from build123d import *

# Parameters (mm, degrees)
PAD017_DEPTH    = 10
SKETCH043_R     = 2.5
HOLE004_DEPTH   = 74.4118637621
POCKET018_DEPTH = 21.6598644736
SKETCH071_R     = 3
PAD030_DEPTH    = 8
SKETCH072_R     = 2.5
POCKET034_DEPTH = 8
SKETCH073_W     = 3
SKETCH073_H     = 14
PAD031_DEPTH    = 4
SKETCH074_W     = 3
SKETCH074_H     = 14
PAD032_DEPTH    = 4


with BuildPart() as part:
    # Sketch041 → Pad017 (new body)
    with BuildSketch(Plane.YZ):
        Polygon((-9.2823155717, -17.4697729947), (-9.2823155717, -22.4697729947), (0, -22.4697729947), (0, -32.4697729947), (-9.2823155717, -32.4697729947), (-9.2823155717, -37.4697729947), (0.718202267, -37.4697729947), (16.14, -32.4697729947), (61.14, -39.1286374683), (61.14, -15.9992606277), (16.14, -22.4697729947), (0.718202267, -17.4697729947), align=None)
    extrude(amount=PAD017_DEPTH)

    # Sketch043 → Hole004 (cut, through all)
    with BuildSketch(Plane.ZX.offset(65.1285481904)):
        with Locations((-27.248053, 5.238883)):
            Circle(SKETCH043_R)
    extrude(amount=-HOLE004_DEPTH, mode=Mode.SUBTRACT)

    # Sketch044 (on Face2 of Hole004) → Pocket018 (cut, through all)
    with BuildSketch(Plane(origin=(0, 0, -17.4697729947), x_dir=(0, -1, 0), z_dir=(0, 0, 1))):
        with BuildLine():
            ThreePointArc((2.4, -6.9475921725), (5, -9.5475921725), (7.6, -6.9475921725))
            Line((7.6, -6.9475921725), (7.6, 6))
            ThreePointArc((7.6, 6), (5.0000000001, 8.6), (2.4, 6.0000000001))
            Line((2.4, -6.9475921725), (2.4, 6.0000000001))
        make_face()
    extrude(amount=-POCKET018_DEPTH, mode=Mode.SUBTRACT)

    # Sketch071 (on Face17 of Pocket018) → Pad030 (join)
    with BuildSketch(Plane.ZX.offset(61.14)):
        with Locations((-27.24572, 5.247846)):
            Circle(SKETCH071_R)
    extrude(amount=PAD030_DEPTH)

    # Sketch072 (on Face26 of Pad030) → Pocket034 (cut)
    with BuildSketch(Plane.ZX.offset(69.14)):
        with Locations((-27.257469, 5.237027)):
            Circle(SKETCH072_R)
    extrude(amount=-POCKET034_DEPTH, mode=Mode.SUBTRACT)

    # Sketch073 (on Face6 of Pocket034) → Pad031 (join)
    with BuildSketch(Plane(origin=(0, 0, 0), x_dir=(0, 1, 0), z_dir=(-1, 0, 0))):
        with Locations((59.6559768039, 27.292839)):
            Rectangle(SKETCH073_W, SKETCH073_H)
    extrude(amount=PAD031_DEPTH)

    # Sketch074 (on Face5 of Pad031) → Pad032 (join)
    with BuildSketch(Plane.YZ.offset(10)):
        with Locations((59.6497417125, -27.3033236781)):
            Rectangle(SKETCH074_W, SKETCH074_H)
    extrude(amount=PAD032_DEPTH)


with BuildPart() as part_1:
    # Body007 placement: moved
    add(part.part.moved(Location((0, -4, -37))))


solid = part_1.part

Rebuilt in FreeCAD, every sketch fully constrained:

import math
import FreeCAD as App
import Part
import Sketcher

V = App.Vector
Q = App.Units.Quantity

doc = App.newDocument("Part")
body = doc.addObject("PartDesign::Body", "Body")

sketch1 = body.newObject("Sketcher::SketchObject", "Sketch")
sketch1.AttachmentSupport = (doc.getObject("YZ_Plane"), [""])
sketch1.MapMode = "FlatFace"
sketch1.addGeometry(Part.LineSegment(V(-9, -17, 0), V(-9, -22, 0)), False)
sketch1.addGeometry(Part.LineSegment(V(-9, -22, 0), V(0, -22, 0)), False)
sketch1.addGeometry(Part.LineSegment(V(0, -22, 0), V(0, -32, 0)), False)
sketch1.addGeometry(Part.LineSegment(V(0, -32, 0), V(-9, -32, 0)), False)
sketch1.addGeometry(Part.LineSegment(V(-9, -32, 0), V(-9, -37, 0)), False)
sketch1.addGeometry(Part.LineSegment(V(-9, -37, 0), V(1, -37, 0)), False)
sketch1.addGeometry(Part.LineSegment(V(1, -37, 0), V(16, -32, 0)), False)
sketch1.addGeometry(Part.LineSegment(V(16, -32, 0), V(61, -39, 0)), False)
sketch1.addGeometry(Part.LineSegment(V(61, -39, 0), V(61, -16, 0)), False)
sketch1.addGeometry(Part.LineSegment(V(61, -16, 0), V(16, -22, 0)), False)
sketch1.addGeometry(Part.LineSegment(V(16, -22, 0), V(1, -17, 0)), False)
sketch1.addGeometry(Part.LineSegment(V(1, -17, 0), V(-9, -17, 0)), False)
sketch1.addConstraint(Sketcher.Constraint("Coincident", 0, 2, 1, 1))
sketch1.addConstraint(Sketcher.Constraint("Coincident", 1, 2, 2, 1))
sketch1.addConstraint(Sketcher.Constraint("Coincident", 2, 2, 3, 1))
sketch1.addConstraint(Sketcher.Constraint("Coincident", 3, 2, 4, 1))
sketch1.addConstraint(Sketcher.Constraint("Coincident", 4, 2, 5, 1))
sketch1.addConstraint(Sketcher.Constraint("Coincident", 5, 2, 6, 1))
sketch1.addConstraint(Sketcher.Constraint("Coincident", 6, 2, 7, 1))
sketch1.addConstraint(Sketcher.Constraint("Coincident", 7, 2, 8, 1))
sketch1.addConstraint(Sketcher.Constraint("Coincident", 8, 2, 9, 1))
sketch1.addConstraint(Sketcher.Constraint("Coincident", 9, 2, 10, 1))
sketch1.addConstraint(Sketcher.Constraint("Coincident", 10, 2, 11, 1))
sketch1.addConstraint(Sketcher.Constraint("Coincident", 11, 2, 0, 1))
sketch1.addConstraint(Sketcher.Constraint("Vertical", 0))
sketch1.addConstraint(Sketcher.Constraint("Horizontal", 1))
sketch1.addConstraint(Sketcher.Constraint("Vertical", 2))
sketch1.addConstraint(Sketcher.Constraint("Horizontal", 3))
sketch1.addConstraint(Sketcher.Constraint("Vertical", 4))
sketch1.addConstraint(Sketcher.Constraint("Horizontal", 5))
sketch1.addConstraint(Sketcher.Constraint("Vertical", 8))
sketch1.addConstraint(Sketcher.Constraint("Horizontal", 11))
sketch1.addConstraint(Sketcher.Constraint("PointOnObject", 1, 2, -2))
sketch1.addConstraint(Sketcher.Constraint("Horizontal", 3, 2, 6, 2))
sketch1.addConstraint(Sketcher.Constraint("Horizontal", 1, 2, 9, 2))
sketch1.addConstraint(Sketcher.Constraint("Vertical", 0, 2, 3, 2))
sketch1.addConstraint(Sketcher.Constraint("Vertical", 6, 2, 9, 2))
sketch1.addConstraint(Sketcher.Constraint("Vertical", 5, 2, 10, 2))
sketch1.addConstraint(Sketcher.Constraint("Equal", 0, 4))
sketch1.addConstraint(Sketcher.Constraint("DistanceY", 0, 2, 0, 1, Q("5 mm")))
sketch1.addConstraint(Sketcher.Constraint("DistanceY", 2, 2, 2, 1, Q("10 mm")))
sketch1.addConstraint(Sketcher.Constraint("DistanceX", 6, 2, 7, 2, Q("45 mm")))
sketch1.addConstraint(Sketcher.Constraint("DistanceX", -1, 1, 6, 2, Q("16.14 mm")))
sketch1.addConstraint(Sketcher.Constraint("Distance", 6, Q("16.212089 mm")))
sketch1.addConstraint(Sketcher.Constraint("DistanceX", 1, 1, 1, 2, Q("9.282316 mm")))
sketch1.addConstraint(Sketcher.Constraint("DistanceY", 8, 1, 8, 2, Q("23.129377 mm")))
sketch1.addConstraint(Sketcher.Constraint("DistanceY", 8, 2, -1, 1, Q("15.999261 mm")))
sketch1.addConstraint(Sketcher.Constraint("Distance", 7, Q("45.490004 mm")))
pad1 = body.newObject("PartDesign::Pad", "Pad")
pad1.Profile = sketch1
pad1.Length = 10

sketch2 = body.newObject("Sketcher::SketchObject", "Sketch001")
sketch2.AttachmentSupport = (doc.getObject("XZ_Plane"), [""])
sketch2.MapMode = "FlatFace"
sketch2.AttachmentOffset = App.Placement(V(0, 0, -65.128548), App.Rotation())
sketch2.addGeometry(Part.Circle(V(5.2, -27.2, 0), V(0, 0, 1), 2.5), False)
sketch2.addConstraint(Sketcher.Constraint("Diameter", 0, Q("5 mm")))
sketch2.addConstraint(Sketcher.Constraint("DistanceX", -1, 1, 0, 3, Q("5.238883 mm")))
sketch2.addConstraint(Sketcher.Constraint("DistanceY", 0, 3, -1, 1, Q("27.248053 mm")))
pocket1 = body.newObject("PartDesign::Pocket", "Pocket")
pocket1.Profile = sketch2
pocket1.Type = "ThroughAll"
pocket1.Reversed = True

sketch3 = body.newObject("Sketcher::SketchObject", "Sketch002")
sketch3.AttachmentSupport = (doc.getObject("XY_Plane"), [""])
sketch3.MapMode = "FlatFace"
sketch3.AttachmentOffset = App.Placement(V(0, 0, -17.469773), App.Rotation())
sketch3.addGeometry(Part.ArcOfCircle(Part.Circle(V(-6.9, -5, 0), V(0, 0, 1), 2.6), math.radians(90), math.radians(270)), False)
sketch3.addGeometry(Part.LineSegment(V(-6.9, -7.6, 0), V(6, -7.6, 0)), False)
sketch3.addGeometry(Part.ArcOfCircle(Part.Circle(V(6, -5, 0), V(0, 0, 1), 2.6), math.radians(-90), math.radians(90)), False)
sketch3.addGeometry(Part.LineSegment(V(6, -2.4, 0), V(-6.9, -2.4, 0)), False)
sketch3.addConstraint(Sketcher.Constraint("Tangent", 0, 2, 1, 1))
sketch3.addConstraint(Sketcher.Constraint("Tangent", 1, 2, 2, 1))
sketch3.addConstraint(Sketcher.Constraint("Tangent", 2, 2, 3, 1))
sketch3.addConstraint(Sketcher.Constraint("Tangent", 3, 2, 0, 1))
sketch3.addConstraint(Sketcher.Constraint("Horizontal", 1))
sketch3.addConstraint(Sketcher.Constraint("Horizontal", 3))
sketch3.addConstraint(Sketcher.Constraint("Radius", 0, Q("2.6 mm")))
sketch3.addConstraint(Sketcher.Constraint("DistanceY", 0, 3, -1, 1, Q("5 mm")))
sketch3.addConstraint(Sketcher.Constraint("DistanceX", -1, 1, 2, 3, Q("6 mm")))
sketch3.addConstraint(Sketcher.Constraint("DistanceX", 1, 1, 1, 2, Q("12.947592 mm")))
pocket2 = body.newObject("PartDesign::Pocket", "Pocket001")
pocket2.Profile = sketch3
pocket2.Type = "ThroughAll"

sketch4 = body.newObject("Sketcher::SketchObject", "Sketch003")
sketch4.AttachmentSupport = (doc.getObject("XZ_Plane"), [""])
sketch4.MapMode = "FlatFace"
sketch4.AttachmentOffset = App.Placement(V(0, 0, -61.14), App.Rotation())
sketch4.addGeometry(Part.Circle(V(5.2, -27.2, 0), V(0, 0, 1), 3), False)
sketch4.addConstraint(Sketcher.Constraint("Diameter", 0, Q("6 mm")))
sketch4.addConstraint(Sketcher.Constraint("DistanceY", 0, 3, -1, 1, Q("27.24572 mm")))
sketch4.addConstraint(Sketcher.Constraint("DistanceX", -1, 1, 0, 3, Q("5.247846 mm")))
pad2 = body.newObject("PartDesign::Pad", "Pad001")
pad2.Profile = sketch4
pad2.Length = 8
pad2.Reversed = True

sketch5 = body.newObject("Sketcher::SketchObject", "Sketch004")
sketch5.AttachmentSupport = (doc.getObject("XZ_Plane"), [""])
sketch5.MapMode = "FlatFace"
sketch5.AttachmentOffset = App.Placement(V(0, 0, -69.14), App.Rotation())
sketch5.addGeometry(Part.Circle(V(5.2, -27.3, 0), V(0, 0, 1), 2.5), False)
sketch5.addConstraint(Sketcher.Constraint("Diameter", 0, Q("5 mm")))
sketch5.addConstraint(Sketcher.Constraint("DistanceY", 0, 3, -1, 1, Q("27.257469 mm")))
sketch5.addConstraint(Sketcher.Constraint("DistanceX", -1, 1, 0, 3, Q("5.237027 mm")))
pocket3 = body.newObject("PartDesign::Pocket", "Pocket002")
pocket3.Profile = sketch5
pocket3.Length = 8
pocket3.Reversed = True

sketch6 = body.newObject("Sketcher::SketchObject", "Sketch005")
sketch6.AttachmentSupport = (doc.getObject("YZ_Plane"), [""])
sketch6.MapMode = "FlatFace"
sketch6.addGeometry(Part.LineSegment(V(58.2, -34.3, 0), V(58.2, -20.3, 0)), False)
sketch6.addGeometry(Part.LineSegment(V(58.2, -20.3, 0), V(61.2, -20.3, 0)), False)
sketch6.addGeometry(Part.LineSegment(V(61.2, -20.3, 0), V(61.2, -34.3, 0)), False)
sketch6.addGeometry(Part.LineSegment(V(61.2, -34.3, 0), V(58.2, -34.3, 0)), False)
sketch6.addConstraint(Sketcher.Constraint("Coincident", 0, 2, 1, 1))
sketch6.addConstraint(Sketcher.Constraint("Coincident", 1, 2, 2, 1))
sketch6.addConstraint(Sketcher.Constraint("Coincident", 2, 2, 3, 1))
sketch6.addConstraint(Sketcher.Constraint("Coincident", 3, 2, 0, 1))
sketch6.addConstraint(Sketcher.Constraint("Vertical", 0))
sketch6.addConstraint(Sketcher.Constraint("Horizontal", 1))
sketch6.addConstraint(Sketcher.Constraint("Vertical", 2))
sketch6.addConstraint(Sketcher.Constraint("Horizontal", 3))
sketch6.addConstraint(Sketcher.Constraint("DistanceX", 1, 1, 1, 2, Q("3 mm")))
sketch6.addConstraint(Sketcher.Constraint("DistanceY", 0, 1, 0, 2, Q("14 mm")))
sketch6.addConstraint(Sketcher.Constraint("DistanceY", 0, 2, -1, 1, Q("20.292839 mm")))
sketch6.addConstraint(Sketcher.Constraint("DistanceX", -1, 1, 0, 2, Q("58.155977 mm")))
pad3 = body.newObject("PartDesign::Pad", "Pad002")
pad3.Profile = sketch6
pad3.Length = 4
pad3.Reversed = True

sketch7 = body.newObject("Sketcher::SketchObject", "Sketch006")
sketch7.AttachmentSupport = (doc.getObject("YZ_Plane"), [""])
sketch7.MapMode = "FlatFace"
sketch7.AttachmentOffset = App.Placement(V(0, 0, 10), App.Rotation())
sketch7.addGeometry(Part.LineSegment(V(58.1, -20.3, 0), V(58.1, -34.3, 0)), False)
sketch7.addGeometry(Part.LineSegment(V(58.1, -34.3, 0), V(61.1, -34.3, 0)), False)
sketch7.addGeometry(Part.LineSegment(V(61.1, -34.3, 0), V(61.1, -20.3, 0)), False)
sketch7.addGeometry(Part.LineSegment(V(61.1, -20.3, 0), V(58.1, -20.3, 0)), False)
sketch7.addConstraint(Sketcher.Constraint("Coincident", 0, 2, 1, 1))
sketch7.addConstraint(Sketcher.Constraint("Coincident", 1, 2, 2, 1))
sketch7.addConstraint(Sketcher.Constraint("Coincident", 2, 2, 3, 1))
sketch7.addConstraint(Sketcher.Constraint("Coincident", 3, 2, 0, 1))
sketch7.addConstraint(Sketcher.Constraint("Vertical", 0))
sketch7.addConstraint(Sketcher.Constraint("Horizontal", 1))
sketch7.addConstraint(Sketcher.Constraint("Vertical", 2))
sketch7.addConstraint(Sketcher.Constraint("Horizontal", 3))
sketch7.addConstraint(Sketcher.Constraint("DistanceX", 1, 1, 1, 2, Q("3 mm")))
sketch7.addConstraint(Sketcher.Constraint("DistanceY", 0, 2, 0, 1, Q("14 mm")))
sketch7.addConstraint(Sketcher.Constraint("DistanceX", -1, 1, 0, 2, Q("58.149742 mm")))
sketch7.addConstraint(Sketcher.Constraint("DistanceY", 0, 2, -1, 1, Q("34.303324 mm")))
pad4 = body.newObject("PartDesign::Pad", "Pad003")
pad4.Profile = sketch7
pad4.Length = 4
body2 = doc.addObject("PartDesign::Body", "Body001")
doc.recompute()

body.Placement = App.Placement(V(0, -4, -37), App.Rotation(V(0, 0, 1), 0))
boolean = body2.newObject("PartDesign::Boolean", "Boolean")
boolean.Type = "Fuse"
boolean.addObjects([body])

doc.recompute()
